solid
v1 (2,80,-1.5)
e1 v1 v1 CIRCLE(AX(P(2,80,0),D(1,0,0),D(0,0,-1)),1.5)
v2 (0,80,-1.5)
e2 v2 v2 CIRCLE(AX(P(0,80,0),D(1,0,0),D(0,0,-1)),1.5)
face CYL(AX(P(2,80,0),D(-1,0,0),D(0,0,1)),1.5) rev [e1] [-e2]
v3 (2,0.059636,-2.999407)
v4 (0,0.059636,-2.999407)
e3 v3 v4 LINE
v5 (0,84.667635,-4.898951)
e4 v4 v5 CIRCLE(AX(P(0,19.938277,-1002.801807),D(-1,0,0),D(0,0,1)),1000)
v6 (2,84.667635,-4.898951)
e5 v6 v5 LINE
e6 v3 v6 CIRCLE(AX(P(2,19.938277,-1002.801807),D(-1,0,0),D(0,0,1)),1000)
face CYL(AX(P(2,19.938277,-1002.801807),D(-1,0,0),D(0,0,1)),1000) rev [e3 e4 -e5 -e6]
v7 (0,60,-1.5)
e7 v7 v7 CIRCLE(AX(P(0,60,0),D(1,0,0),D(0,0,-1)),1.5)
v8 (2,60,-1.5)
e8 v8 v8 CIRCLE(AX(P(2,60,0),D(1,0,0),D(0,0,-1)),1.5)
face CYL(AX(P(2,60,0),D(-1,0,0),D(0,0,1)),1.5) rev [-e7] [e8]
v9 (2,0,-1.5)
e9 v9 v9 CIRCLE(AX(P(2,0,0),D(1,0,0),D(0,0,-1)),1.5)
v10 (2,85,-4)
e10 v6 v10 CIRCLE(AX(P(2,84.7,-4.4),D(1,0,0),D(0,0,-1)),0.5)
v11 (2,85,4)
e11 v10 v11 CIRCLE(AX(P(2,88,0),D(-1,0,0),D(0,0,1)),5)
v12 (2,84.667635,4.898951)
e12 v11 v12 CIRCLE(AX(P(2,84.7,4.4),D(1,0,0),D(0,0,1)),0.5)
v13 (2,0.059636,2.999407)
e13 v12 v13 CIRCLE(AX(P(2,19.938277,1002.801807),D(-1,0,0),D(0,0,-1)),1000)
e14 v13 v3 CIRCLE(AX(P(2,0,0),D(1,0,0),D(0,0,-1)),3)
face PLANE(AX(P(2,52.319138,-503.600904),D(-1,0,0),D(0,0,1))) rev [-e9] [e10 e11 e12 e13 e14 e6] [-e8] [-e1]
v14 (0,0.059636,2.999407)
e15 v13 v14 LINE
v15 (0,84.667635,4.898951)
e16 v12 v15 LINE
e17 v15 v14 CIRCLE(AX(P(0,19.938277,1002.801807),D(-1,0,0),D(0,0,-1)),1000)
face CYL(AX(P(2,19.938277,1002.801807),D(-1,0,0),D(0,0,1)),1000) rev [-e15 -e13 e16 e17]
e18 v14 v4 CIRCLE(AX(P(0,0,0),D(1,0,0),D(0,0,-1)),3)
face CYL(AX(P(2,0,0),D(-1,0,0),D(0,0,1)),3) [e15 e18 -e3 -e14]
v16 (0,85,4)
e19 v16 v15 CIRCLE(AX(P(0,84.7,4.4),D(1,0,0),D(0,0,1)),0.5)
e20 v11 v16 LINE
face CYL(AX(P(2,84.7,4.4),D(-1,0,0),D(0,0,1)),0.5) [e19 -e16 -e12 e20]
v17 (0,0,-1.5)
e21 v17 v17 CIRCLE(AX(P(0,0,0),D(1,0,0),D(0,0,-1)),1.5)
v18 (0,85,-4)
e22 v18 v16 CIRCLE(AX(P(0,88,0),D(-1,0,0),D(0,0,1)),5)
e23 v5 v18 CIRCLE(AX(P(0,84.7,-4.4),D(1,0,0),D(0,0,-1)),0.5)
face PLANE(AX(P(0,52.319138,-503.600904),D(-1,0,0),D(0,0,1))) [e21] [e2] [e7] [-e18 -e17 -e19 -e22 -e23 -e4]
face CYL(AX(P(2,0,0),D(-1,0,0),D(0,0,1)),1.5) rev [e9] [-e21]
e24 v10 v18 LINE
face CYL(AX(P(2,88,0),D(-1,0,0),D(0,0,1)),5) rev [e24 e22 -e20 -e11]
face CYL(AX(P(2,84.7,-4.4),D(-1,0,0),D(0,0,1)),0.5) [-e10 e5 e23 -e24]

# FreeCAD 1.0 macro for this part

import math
import FreeCAD as App
import Part
import Sketcher

V = App.Vector

doc = App.newDocument("Part")
body = doc.addObject("PartDesign::Body", "Body")

sketch1 = doc.addObject("Sketcher::SketchObject", "Sketch")
body.addObject(sketch1)
sketch1.AttachmentSupport = (doc.YZ_Plane, [""])
sketch1.MapMode = "FlatFace"
sketch1.addGeometry([
    Part.ArcOfCircle(Part.Circle(V(0, 0, 0), V(0, 0, 1), 3), math.radians(89), math.radians(271)),
    Part.ArcOfCircle(Part.Circle(V(19.9, -1002.8, 0), V(0, 0, 1), 1000), math.radians(86.29), math.radians(91.14)),
    Part.ArcOfCircle(Part.Circle(V(84.7, -4.4, 0), V(0, 0, 1), 0.5), math.radians(-94), math.radians(53)),
    Part.ArcOfCircle(Part.Circle(V(88, 0, 0), V(0, 0, 1), 5), math.radians(127), math.radians(233)),
    Part.ArcOfCircle(Part.Circle(V(84.7, 4.4, 0), V(0, 0, 1), 0.5), math.radians(-53), math.radians(94)),
    Part.ArcOfCircle(Part.Circle(V(19.9, 1002.8, 0), V(0, 0, 1), 1000), math.radians(-91.14), math.radians(-86.29)),
    Part.Circle(V(0, 0, 0), V(0, 0, 1), 1.5),
    Part.Circle(V(60, 0, 0), V(0, 0, 1), 1.5),
    Part.Circle(V(80, 0, 0), V(0, 0, 1), 1.5),
], False)
sketch1.addConstraint([
    Sketcher.Constraint("Tangent", 0, 2, 1, 2),
    Sketcher.Constraint("Tangent", 1, 1, 2, 1),
    Sketcher.Constraint("Tangent", 2, 2, 3, 2),
    Sketcher.Constraint("Tangent", 3, 1, 4, 1),
    Sketcher.Constraint("Tangent", 4, 2, 5, 2),
    Sketcher.Constraint("Tangent", 5, 1, 0, 1),
    Sketcher.Constraint("Coincident", 0, 3, -1, 1),
    Sketcher.Constraint("Coincident", 6, 3, -1, 1),
    Sketcher.Constraint("Equal", 2, 4),
    Sketcher.Constraint("Equal", 1, 5),
    Sketcher.Constraint("Equal", 6, 7),
    Sketcher.Constraint("Equal", 7, 8),
    Sketcher.Constraint("Symmetric", 2, 3, 4, 3, -1),
    Sketcher.Constraint("PointOnObject", 7, 3, -1),
    Sketcher.Constraint("PointOnObject", 8, 3, -1),
    Sketcher.Constraint("Diameter", 6, 3.0),
    Sketcher.Constraint("Radius", 0, 3.0),
    Sketcher.Constraint("Radius", 1, 1000.0),
    Sketcher.Constraint("Radius", 3, 5.0),
    Sketcher.Constraint("Radius", 2, 0.5),
    Sketcher.Constraint("DistanceX", -1, 1, 3, 3, 88.0),
    Sketcher.Constraint("DistanceX", -1, 1, 7, 3, 60.0),
    Sketcher.Constraint("DistanceX", -1, 1, 8, 3, 80.0),
    Sketcher.Constraint("DistanceX", -1, 1, 2, 2, 85.0),
])
pad1 = doc.addObject("PartDesign::Pad", "Pad")
body.addObject(pad1)
pad1.Profile = sketch1
pad1.Length = 2

doc.recompute()
